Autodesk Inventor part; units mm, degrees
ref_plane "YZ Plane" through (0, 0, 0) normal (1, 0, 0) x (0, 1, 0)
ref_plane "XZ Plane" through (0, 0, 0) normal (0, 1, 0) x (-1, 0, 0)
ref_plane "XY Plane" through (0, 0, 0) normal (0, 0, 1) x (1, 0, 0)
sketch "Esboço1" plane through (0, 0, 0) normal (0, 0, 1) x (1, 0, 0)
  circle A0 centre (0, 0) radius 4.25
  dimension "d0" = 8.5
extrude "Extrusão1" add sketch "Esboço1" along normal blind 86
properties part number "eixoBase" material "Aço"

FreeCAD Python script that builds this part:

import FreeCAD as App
import Part
import Sketcher
from FreeCAD import Vector

doc = App.newDocument("Part")
body = doc.addObject("PartDesign::Body", "Body")

# Sketch on XY plane
sketch1 = doc.addObject("Sketcher::SketchObject", "Sketch")
body.addObject(sketch1)
sketch1.AttachmentSupport = (doc.XY_Plane, [""])
sketch1.MapMode = "FlatFace"
sketch1.addGeometry(Part.Circle(Vector(0, 0, 0), Vector(0, 0, 1), 4.2), False)
sketch1.addConstraint(Sketcher.Constraint("Coincident", 0, 3, -1, 1))
sketch1.addConstraint(Sketcher.Constraint("Diameter", 0, 8.5))
pad1 = doc.addObject("PartDesign::Pad", "Pad")
body.addObject(pad1)
pad1.Profile = sketch1
pad1.Length = 86

doc.recompute()
